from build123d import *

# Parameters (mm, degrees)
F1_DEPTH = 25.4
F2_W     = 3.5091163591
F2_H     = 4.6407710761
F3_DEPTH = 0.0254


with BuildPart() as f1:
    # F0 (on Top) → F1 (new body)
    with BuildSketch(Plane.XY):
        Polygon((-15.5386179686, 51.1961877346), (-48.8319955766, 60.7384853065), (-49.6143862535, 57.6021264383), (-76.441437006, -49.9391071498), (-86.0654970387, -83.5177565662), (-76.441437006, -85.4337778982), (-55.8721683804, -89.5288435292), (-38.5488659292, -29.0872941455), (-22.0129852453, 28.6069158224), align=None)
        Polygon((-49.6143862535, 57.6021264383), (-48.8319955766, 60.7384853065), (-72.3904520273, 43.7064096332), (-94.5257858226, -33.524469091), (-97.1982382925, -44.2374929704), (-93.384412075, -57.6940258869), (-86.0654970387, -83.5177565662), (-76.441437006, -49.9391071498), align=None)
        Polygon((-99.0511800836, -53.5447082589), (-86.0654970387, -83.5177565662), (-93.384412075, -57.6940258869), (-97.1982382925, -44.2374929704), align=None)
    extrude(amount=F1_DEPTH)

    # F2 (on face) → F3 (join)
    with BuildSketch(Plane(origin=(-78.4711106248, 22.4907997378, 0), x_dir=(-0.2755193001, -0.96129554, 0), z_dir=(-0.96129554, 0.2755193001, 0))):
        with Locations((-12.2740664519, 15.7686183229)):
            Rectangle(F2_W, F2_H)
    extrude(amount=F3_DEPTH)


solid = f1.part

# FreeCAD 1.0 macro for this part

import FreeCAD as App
import Part
import Sketcher
from FreeCAD import Vector
Q = App.Units.Quantity


def add_polygon(sketch, points):
    """Adds a closed chain of lines whose ends are joined by coincident constraints."""
    first, n = sketch.GeometryCount, len(points)
    for a, b in zip(points, points[1:] + points[:1]):
        sketch.addGeometry(Part.LineSegment(App.Vector(*a, 0), App.Vector(*b, 0)), False)
    for i in range(n):
        sketch.addConstraint(Sketcher.Constraint("Coincident", first + i, 2, first + (i + 1) % n, 1))

doc = App.newDocument("Part")
body = doc.addObject("PartDesign::Body", "Body")

# Sketch on XY plane
sketch1 = doc.addObject("Sketcher::SketchObject", "Sketch")
body.addObject(sketch1)
sketch1.AttachmentSupport = (doc.XY_Plane, [""])
sketch1.MapMode = "FlatFace"
add_polygon(sketch1, [(-16, 51), (-49, 61), (-72, 44), (-95, -34), (-97, -44), (-99, -54), (-86, -84), (-76, -85), (-56, -90), (-22, 29)])  # lines 0-9
sketch1.addConstraint([
    Sketcher.Constraint("Perpendicular", 0, 2),
    Sketcher.Constraint("Perpendicular", 4, 6),
    Sketcher.Constraint("Parallel", 6, 7),
    Sketcher.Constraint("Parallel", 2, 8),
    Sketcher.Constraint("Parallel", 8, 9),
    Sketcher.Constraint("DistanceX", 5, 2, 6, 2, Q("0.3789 in")),
    Sketcher.Constraint("DistanceX", 5, 2, 0, 2, 37.233501),
    Sketcher.Constraint("DistanceX", 3, 2, 6, 2, 20.756801),
    Sketcher.Constraint("DistanceX", 2, 2, 8, 2, 72.512801),
    Sketcher.Constraint("Distance", 2, 80.340411),
    Sketcher.Constraint("Distance", 4, 9.489871),
    Sketcher.Constraint("Distance", 9, 23.498779),
    Sketcher.Constraint("DistanceY", -1, 1, 1, 2, 43.70641),
    Sketcher.Constraint("DistanceY", 2, 2, -1, 1, 33.524469),
    Sketcher.Constraint("DistanceX", 3, 2, -1, 1, 97.198238),
    Sketcher.Constraint("DistanceX", 4, 2, -1, 1, 99.05118),
    Sketcher.Constraint("DistanceY", 4, 2, -1, 1, 53.544708),
    Sketcher.Constraint("DistanceX", 7, 2, -1, 1, 55.872168),
    Sketcher.Constraint("DistanceX", 2, 2, 0, 2, 45.69379),
    Sketcher.Constraint("DistanceY", 3, 2, 0, 2, 104.975978),
])
pad1 = doc.addObject("PartDesign::Pad", "Pad")
body.addObject(pad1)
pad1.Profile = sketch1
pad1.Length = Q("1 in")

# Sketch on an angled plane
sketch2 = doc.addObject("Sketcher::SketchObject", "Sketch001")
body.addObject(sketch2)
sketch2.Placement = App.Placement(Vector(-78.471111, 22.4908, 0), App.Rotation(Vector(-0.2755193, -0.96129554, 0), Vector(0, 0, 1), Vector(-0.96129554, 0.2755193, 0), "ZXY"))
add_polygon(sketch2, [(-14, 18.1), (-14, 13.4), (-10.5, 13.4), (-10.5, 18.1)])  # lines 0-3
sketch2.addConstraint([
    Sketcher.Constraint("Vertical", 0),
    Sketcher.Constraint("Horizontal", 1),
    Sketcher.Constraint("Vertical", 2),
    Sketcher.Constraint("Horizontal", 3),
    Sketcher.Constraint("DistanceY", 0, 2, 0, 1, 4.640771),
    Sketcher.Constraint("DistanceX", 1, 1, 1, 2, 3.509116),
    Sketcher.Constraint("DistanceX", 1, 2, -1, 1, 10.519508),
    Sketcher.Constraint("DistanceY", -1, 1, 0, 2, 13.448233),
])
pad2 = doc.addObject("PartDesign::Pad", "Pad001")
body.addObject(pad2)
pad2.Profile = sketch2
pad2.Length = Q("0.001 in")

doc.recompute()
